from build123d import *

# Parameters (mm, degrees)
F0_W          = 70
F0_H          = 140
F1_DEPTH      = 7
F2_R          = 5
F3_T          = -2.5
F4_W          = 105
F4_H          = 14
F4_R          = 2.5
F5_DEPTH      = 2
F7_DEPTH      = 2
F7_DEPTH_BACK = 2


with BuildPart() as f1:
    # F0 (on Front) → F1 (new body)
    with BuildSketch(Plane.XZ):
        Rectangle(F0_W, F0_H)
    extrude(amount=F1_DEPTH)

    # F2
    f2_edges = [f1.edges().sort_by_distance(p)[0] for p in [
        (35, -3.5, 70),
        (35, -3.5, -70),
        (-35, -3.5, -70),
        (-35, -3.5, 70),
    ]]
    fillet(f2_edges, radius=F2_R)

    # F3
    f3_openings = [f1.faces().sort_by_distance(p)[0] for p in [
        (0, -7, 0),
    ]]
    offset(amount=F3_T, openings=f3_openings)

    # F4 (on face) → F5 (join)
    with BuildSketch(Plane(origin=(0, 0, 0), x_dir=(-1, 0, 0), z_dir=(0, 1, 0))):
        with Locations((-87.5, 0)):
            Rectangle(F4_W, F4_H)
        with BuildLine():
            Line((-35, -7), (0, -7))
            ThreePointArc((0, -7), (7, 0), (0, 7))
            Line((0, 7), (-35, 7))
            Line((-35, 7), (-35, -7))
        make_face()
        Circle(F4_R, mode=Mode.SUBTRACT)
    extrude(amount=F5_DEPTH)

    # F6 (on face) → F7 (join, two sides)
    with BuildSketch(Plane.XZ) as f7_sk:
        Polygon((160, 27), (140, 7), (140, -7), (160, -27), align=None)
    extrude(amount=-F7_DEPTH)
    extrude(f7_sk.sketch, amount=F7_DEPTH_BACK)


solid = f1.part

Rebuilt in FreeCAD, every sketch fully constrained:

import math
import FreeCAD as App
import Part
import Sketcher

V = App.Vector


def edges_at(feature, points):
    """Names of the edges that pass closest to the given points."""
    edges = feature.Shape.Edges
    near = lambda p: min(range(len(edges)), key=lambda i: edges[i].distToShape(Part.Vertex(*p))[0])
    return sorted({f"Edge{near(p) + 1}" for p in points})


def faces_at(feature, points):
    """Names of the faces that lie closest to the given points."""
    faces = feature.Shape.Faces
    near = lambda p: min(range(len(faces)), key=lambda i: faces[i].distToShape(Part.Vertex(*p))[0])
    return sorted({f"Face{near(p) + 1}" for p in points})

doc = App.newDocument("Part")
body = doc.addObject("PartDesign::Body", "Body")

# Sketch on XZ plane
sketch1 = body.newObject("Sketcher::SketchObject", "Sketch")
sketch1.AttachmentSupport = (doc.getObject("XZ_Plane"), [""])
sketch1.MapMode = "FlatFace"
sketch1.addGeometry([
    Part.LineSegment(V(-35, 70, 0), V(-35, -70, 0)),
    Part.LineSegment(V(-35, -70, 0), V(35, -70, 0)),
    Part.LineSegment(V(35, -70, 0), V(35, 70, 0)),
    Part.LineSegment(V(35, 70, 0), V(-35, 70, 0)),
], False)
sketch1.addConstraint([
    Sketcher.Constraint("Coincident", 0, 2, 1, 1),
    Sketcher.Constraint("Coincident", 1, 2, 2, 1),
    Sketcher.Constraint("Coincident", 2, 2, 3, 1),
    Sketcher.Constraint("Coincident", 3, 2, 0, 1),
    Sketcher.Constraint("Vertical", 0),
    Sketcher.Constraint("Horizontal", 1),
    Sketcher.Constraint("Vertical", 2),
    Sketcher.Constraint("Horizontal", 3),
    Sketcher.Constraint("Symmetric", 0, 2, 2, 2, -1, 1),
    Sketcher.Constraint("DistanceX", 1, 1, 1, 2, 70.0),
    Sketcher.Constraint("DistanceY", 0, 2, 0, 1, 140.0),
])
pad1 = body.newObject("PartDesign::Pad", "Pad")
pad1.Profile = sketch1
pad1.Length = 7
doc.recompute()

fillet = body.newObject("PartDesign::Fillet", "Fillet")
fillet.Base = (pad1, edges_at(pad1, [
    (35, -3.5, 70),
    (35, -3.5, -70),
    (-35, -3.5, -70),
    (-35, -3.5, 70),
]))
fillet.Radius = 5
doc.recompute()

thickness = body.newObject("PartDesign::Thickness", "Thickness")
thickness.Base = (fillet, faces_at(fillet, [(0, -7, 0)]))
thickness.Value = 2.5
thickness.Reversed = True
thickness.Join = "Arc"

# Sketch on XZ plane
sketch2 = body.newObject("Sketcher::SketchObject", "Sketch001")
sketch2.AttachmentSupport = (doc.getObject("XZ_Plane"), [""])
sketch2.MapMode = "FlatFace"
sketch2.addGeometry([
    Part.LineSegment(V(140, 7, 0), V(140, -7, 0)),  # 0
    Part.LineSegment(V(140, -7, 0), V(0, -7, 0)),  # 1
    Part.ArcOfCircle(Part.Circle(V(0, 0, 0), V(0, 0, 1), 7), math.radians(90), math.radians(270)),  # 2
    Part.LineSegment(V(0, 7, 0), V(140, 7, 0)),  # 3
    Part.Circle(V(0, 0, 0), V(0, 0, 1), 2.5),  # 4
], False)
sketch2.addConstraint([
    Sketcher.Constraint("Coincident", 0, 2, 1, 1),
    Sketcher.Constraint("Tangent", 1, 2, 2, 2),
    Sketcher.Constraint("Tangent", 2, 1, 3, 1),
    Sketcher.Constraint("Coincident", 3, 2, 0, 1),
    Sketcher.Constraint("Vertical", 0),
    Sketcher.Constraint("Horizontal", 1),
    Sketcher.Constraint("Horizontal", 3),
    Sketcher.Constraint("Coincident", 2, 3, -1, 1),
    Sketcher.Constraint("Coincident", 4, 3, -1, 1),
    Sketcher.Constraint("Diameter", 4, 5.0),
    Sketcher.Constraint("Radius", 2, 7.0),
    Sketcher.Constraint("DistanceX", 1, 2, 1, 1, 140.0),
])
pad2 = body.newObject("PartDesign::Pad", "Pad001")
pad2.Profile = sketch2
pad2.Length = 2
pad2.Reversed = True

# Sketch on XZ plane
sketch3 = body.newObject("Sketcher::SketchObject", "Sketch002")
sketch3.AttachmentSupport = (doc.getObject("XZ_Plane"), [""])
sketch3.MapMode = "FlatFace"
sketch3.addGeometry([
    Part.LineSegment(V(160, 27, 0), V(140, 7, 0)),
    Part.LineSegment(V(140, 7, 0), V(140, -7, 0)),
    Part.LineSegment(V(140, -7, 0), V(160, -27, 0)),
    Part.LineSegment(V(160, -27, 0), V(160, 27, 0)),
], False)
sketch3.addConstraint([
    Sketcher.Constraint("Coincident", 0, 2, 1, 1),
    Sketcher.Constraint("Coincident", 1, 2, 2, 1),
    Sketcher.Constraint("Coincident", 2, 2, 3, 1),
    Sketcher.Constraint("Coincident", 3, 2, 0, 1),
    Sketcher.Constraint("Vertical", 1),
    Sketcher.Constraint("Vertical", 3),
    Sketcher.Constraint("Perpendicular", 0, 2),
    Sketcher.Constraint("Equal", 0, 2),
    Sketcher.Constraint("DistanceY", 1, 2, 1, 1, 14.0),
    Sketcher.Constraint("DistanceY", 3, 1, 3, 2, 54.0),
    Sketcher.Constraint("DistanceX", -1, 1, 0, 2, 140.0),
    Sketcher.Constraint("DistanceY", -1, 1, 0, 2, 7.0),
])
pad3 = body.newObject("PartDesign::Pad", "Pad002")
pad3.Profile = sketch3
pad3.Type = "TwoLengths"
pad3.Length = 2
pad3.Length2 = 2
pad3.Reversed = True

doc.recompute()
